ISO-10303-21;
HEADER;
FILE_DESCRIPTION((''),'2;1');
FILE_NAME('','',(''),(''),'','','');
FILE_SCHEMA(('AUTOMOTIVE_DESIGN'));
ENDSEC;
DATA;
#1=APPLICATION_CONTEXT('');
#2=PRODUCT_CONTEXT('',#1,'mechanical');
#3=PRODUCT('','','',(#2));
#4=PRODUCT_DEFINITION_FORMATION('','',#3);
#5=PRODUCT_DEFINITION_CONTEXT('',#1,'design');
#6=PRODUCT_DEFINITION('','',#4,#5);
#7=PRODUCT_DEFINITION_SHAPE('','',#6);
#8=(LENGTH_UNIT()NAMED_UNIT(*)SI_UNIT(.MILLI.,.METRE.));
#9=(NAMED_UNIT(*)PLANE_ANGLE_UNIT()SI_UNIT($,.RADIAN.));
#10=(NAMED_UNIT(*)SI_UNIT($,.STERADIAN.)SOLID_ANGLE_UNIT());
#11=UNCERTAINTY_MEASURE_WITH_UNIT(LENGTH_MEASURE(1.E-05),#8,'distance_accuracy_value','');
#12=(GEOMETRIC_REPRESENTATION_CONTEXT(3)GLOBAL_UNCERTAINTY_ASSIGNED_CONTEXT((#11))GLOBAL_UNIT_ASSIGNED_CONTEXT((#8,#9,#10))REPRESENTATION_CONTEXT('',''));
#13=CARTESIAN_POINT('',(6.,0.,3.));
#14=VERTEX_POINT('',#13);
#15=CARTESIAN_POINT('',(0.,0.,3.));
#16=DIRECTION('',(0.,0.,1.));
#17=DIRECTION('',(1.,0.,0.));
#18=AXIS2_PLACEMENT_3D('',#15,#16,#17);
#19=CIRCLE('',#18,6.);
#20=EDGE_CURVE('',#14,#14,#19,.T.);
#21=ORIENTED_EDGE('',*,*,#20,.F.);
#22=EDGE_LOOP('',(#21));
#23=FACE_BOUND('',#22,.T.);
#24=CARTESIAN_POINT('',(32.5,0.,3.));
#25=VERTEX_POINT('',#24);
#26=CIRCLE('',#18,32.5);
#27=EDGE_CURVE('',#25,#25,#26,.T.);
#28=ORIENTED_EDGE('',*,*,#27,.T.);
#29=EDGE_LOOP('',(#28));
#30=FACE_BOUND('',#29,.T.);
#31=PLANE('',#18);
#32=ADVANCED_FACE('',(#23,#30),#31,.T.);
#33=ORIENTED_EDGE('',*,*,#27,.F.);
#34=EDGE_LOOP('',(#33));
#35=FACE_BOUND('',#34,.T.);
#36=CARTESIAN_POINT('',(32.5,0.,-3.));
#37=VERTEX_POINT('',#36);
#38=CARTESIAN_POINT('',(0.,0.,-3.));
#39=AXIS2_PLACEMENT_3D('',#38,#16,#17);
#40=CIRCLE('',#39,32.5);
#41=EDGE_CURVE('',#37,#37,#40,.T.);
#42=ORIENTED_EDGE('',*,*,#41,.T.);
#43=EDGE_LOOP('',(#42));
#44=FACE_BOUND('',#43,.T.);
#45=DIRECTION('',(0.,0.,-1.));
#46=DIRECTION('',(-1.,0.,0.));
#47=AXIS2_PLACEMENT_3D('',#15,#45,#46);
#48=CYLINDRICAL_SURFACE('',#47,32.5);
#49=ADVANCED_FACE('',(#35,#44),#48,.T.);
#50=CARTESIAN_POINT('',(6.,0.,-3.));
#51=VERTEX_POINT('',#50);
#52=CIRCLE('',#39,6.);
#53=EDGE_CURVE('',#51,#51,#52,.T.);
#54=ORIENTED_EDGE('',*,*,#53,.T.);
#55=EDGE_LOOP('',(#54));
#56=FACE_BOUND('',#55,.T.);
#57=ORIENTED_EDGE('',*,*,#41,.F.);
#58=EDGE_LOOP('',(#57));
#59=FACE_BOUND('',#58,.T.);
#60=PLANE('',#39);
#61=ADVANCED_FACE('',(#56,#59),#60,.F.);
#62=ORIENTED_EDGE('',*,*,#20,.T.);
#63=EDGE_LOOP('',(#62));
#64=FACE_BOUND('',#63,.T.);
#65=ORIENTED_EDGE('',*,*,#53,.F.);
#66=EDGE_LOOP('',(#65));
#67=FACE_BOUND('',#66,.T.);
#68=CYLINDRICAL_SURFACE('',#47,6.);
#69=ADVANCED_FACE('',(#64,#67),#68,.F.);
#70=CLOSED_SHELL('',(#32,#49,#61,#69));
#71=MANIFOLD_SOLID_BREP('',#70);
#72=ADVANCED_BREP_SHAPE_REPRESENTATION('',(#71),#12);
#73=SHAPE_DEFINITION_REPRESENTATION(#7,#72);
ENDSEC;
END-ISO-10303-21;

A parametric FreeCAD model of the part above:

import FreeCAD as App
import Part
import Sketcher

V = App.Vector

doc = App.newDocument("Part")
body = doc.addObject("PartDesign::Body", "Body")

sketch1 = body.newObject("Sketcher::SketchObject", "Sketch")
sketch1.AttachmentSupport = (doc.getObject("XY_Plane"), [""])
sketch1.MapMode = "FlatFace"
sketch1.addGeometry([
    Part.Circle(V(0, 0, 0), V(0, 0, 1), 32.5),
    Part.Circle(V(0, 0, 0), V(0, 0, 1), 6),
], False)
sketch1.addConstraint([
    Sketcher.Constraint("Coincident", 0, 3, -1, 1),
    Sketcher.Constraint("Coincident", 1, 3, -1, 1),
    Sketcher.Constraint("Diameter", 0, 65.0),
    Sketcher.Constraint("Diameter", 1, 12.0),
])
pad1 = body.newObject("PartDesign::Pad", "Pad")
pad1.Profile = sketch1
pad1.Length = 6
pad1.Midplane = True

doc.recompute()
